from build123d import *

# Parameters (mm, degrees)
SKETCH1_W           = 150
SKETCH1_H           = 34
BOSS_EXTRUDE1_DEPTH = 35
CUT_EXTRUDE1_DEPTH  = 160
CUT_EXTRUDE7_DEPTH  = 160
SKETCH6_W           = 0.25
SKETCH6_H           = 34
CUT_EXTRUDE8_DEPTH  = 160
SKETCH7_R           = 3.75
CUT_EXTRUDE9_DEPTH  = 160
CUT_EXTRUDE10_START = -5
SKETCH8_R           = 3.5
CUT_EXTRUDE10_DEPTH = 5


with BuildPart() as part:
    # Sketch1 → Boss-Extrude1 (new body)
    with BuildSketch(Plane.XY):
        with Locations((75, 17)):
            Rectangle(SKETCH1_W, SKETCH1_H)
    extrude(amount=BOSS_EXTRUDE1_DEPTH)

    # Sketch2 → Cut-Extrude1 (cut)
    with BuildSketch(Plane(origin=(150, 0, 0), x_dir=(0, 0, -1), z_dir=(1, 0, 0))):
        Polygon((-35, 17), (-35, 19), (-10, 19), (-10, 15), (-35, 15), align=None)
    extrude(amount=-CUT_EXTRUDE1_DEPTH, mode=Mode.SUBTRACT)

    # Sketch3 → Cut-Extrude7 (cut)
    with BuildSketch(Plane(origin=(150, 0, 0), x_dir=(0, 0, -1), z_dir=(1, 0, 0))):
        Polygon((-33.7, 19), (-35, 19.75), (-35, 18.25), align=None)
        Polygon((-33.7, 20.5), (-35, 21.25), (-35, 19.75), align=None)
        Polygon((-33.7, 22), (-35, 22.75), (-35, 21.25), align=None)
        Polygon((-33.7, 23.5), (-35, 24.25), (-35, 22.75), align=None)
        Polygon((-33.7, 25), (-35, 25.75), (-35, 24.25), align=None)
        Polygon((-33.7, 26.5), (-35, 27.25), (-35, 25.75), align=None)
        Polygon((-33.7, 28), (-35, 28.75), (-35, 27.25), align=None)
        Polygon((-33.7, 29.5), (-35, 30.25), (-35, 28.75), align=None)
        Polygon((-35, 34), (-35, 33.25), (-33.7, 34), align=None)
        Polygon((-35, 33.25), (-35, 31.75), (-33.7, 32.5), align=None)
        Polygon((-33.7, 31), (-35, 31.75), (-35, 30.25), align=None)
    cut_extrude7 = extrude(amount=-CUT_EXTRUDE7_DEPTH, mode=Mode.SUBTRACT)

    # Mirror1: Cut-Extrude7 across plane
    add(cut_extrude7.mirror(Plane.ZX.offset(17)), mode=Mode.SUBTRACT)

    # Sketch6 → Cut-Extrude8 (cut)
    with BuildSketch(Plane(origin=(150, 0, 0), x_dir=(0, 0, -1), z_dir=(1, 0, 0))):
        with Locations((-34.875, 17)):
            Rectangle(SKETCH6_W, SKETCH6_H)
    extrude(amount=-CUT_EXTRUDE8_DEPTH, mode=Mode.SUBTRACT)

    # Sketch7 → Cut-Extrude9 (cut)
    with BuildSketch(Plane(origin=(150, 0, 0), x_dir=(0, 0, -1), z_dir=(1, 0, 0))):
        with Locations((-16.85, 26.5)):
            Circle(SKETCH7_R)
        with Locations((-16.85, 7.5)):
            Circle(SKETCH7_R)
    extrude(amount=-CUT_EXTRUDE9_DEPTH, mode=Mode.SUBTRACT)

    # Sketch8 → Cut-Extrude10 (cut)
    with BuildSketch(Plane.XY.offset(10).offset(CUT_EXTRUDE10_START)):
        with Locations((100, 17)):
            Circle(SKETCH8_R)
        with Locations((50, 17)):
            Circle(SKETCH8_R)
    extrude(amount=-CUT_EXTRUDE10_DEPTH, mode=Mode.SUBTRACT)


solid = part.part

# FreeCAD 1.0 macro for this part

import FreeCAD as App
import Part
import Sketcher
Q = App.Units.Quantity

doc = App.newDocument("Part")
body = doc.addObject("PartDesign::Body", "Body")

# Sketch on XY plane
sketch1 = body.newObject("Sketcher::SketchObject", "Sketch")
sketch1.AttachmentSupport = (doc.getObject("XY_Plane"), [""])
sketch1.MapMode = "FlatFace"
sketch1.addGeometry([
    Part.LineSegment(App.Vector(0, 34, 0), App.Vector(0, 0, 0)),
    Part.LineSegment(App.Vector(0, 0, 0), App.Vector(150, 0, 0)),
    Part.LineSegment(App.Vector(150, 0, 0), App.Vector(150, 34, 0)),
    Part.LineSegment(App.Vector(150, 34, 0), App.Vector(0, 34, 0)),
], False)
sketch1.addConstraint([
    Sketcher.Constraint("Coincident", 0, 2, 1, 1),
    Sketcher.Constraint("Coincident", 1, 2, 2, 1),
    Sketcher.Constraint("Coincident", 2, 2, 3, 1),
    Sketcher.Constraint("Coincident", 3, 2, 0, 1),
    Sketcher.Constraint("Vertical", 0),
    Sketcher.Constraint("Horizontal", 1),
    Sketcher.Constraint("Vertical", 2),
    Sketcher.Constraint("Horizontal", 3),
    Sketcher.Constraint("Coincident", 0, 2, -1, 1),
    Sketcher.Constraint("DistanceX", 1, 1, 1, 2, Q("150 mm")),
    Sketcher.Constraint("DistanceY", 0, 2, 0, 1, Q("34 mm")),
])
pad1 = body.newObject("PartDesign::Pad", "Pad")
pad1.Profile = sketch1
pad1.Length = 35

# Sketch on YZ plane
sketch2 = body.newObject("Sketcher::SketchObject", "Sketch001")
sketch2.AttachmentSupport = (doc.getObject("YZ_Plane"), [""])
sketch2.MapMode = "FlatFace"
sketch2.AttachmentOffset = App.Placement(App.Vector(0, 0, 150), App.Rotation())
sketch2.addGeometry([
    Part.LineSegment(App.Vector(19, 35, 0), App.Vector(15, 35, 0)),
    Part.LineSegment(App.Vector(15, 35, 0), App.Vector(15, 10, 0)),
    Part.LineSegment(App.Vector(15, 10, 0), App.Vector(19, 10, 0)),
    Part.LineSegment(App.Vector(19, 10, 0), App.Vector(19, 35, 0)),
], False)
sketch2.addConstraint([
    Sketcher.Constraint("Coincident", 0, 2, 1, 1),
    Sketcher.Constraint("Coincident", 1, 2, 2, 1),
    Sketcher.Constraint("Coincident", 2, 2, 3, 1),
    Sketcher.Constraint("Coincident", 3, 2, 0, 1),
    Sketcher.Constraint("Horizontal", 0),
    Sketcher.Constraint("Vertical", 1),
    Sketcher.Constraint("Horizontal", 2),
    Sketcher.Constraint("Vertical", 3),
    Sketcher.Constraint("DistanceX", 0, 2, 0, 1, Q("4 mm")),
    Sketcher.Constraint("DistanceY", 1, 2, 1, 1, Q("25 mm")),
    Sketcher.Constraint("DistanceX", -1, 1, 0, 2, Q("15 mm")),
    Sketcher.Constraint("DistanceY", -1, 1, 0, 2, Q("35 mm")),
])
pocket1 = body.newObject("PartDesign::Pocket", "Pocket")
pocket1.Profile = sketch2
pocket1.Length = 160

# Sketch on YZ plane
sketch3 = body.newObject("Sketcher::SketchObject", "Sketch002")
sketch3.AttachmentSupport = (doc.getObject("YZ_Plane"), [""])
sketch3.MapMode = "FlatFace"
sketch3.AttachmentOffset = App.Placement(App.Vector(0, 0, 150), App.Rotation())
sketch3.addGeometry([
    Part.LineSegment(App.Vector(19, 33.7, 0), App.Vector(19.8, 35, 0)),  # 0
    Part.LineSegment(App.Vector(19.8, 35, 0), App.Vector(18.2, 35, 0)),  # 1
    Part.LineSegment(App.Vector(18.2, 35, 0), App.Vector(19, 33.7, 0)),  # 2
    Part.LineSegment(App.Vector(20.5, 33.7, 0), App.Vector(21.2, 35, 0)),  # 3
    Part.LineSegment(App.Vector(21.2, 35, 0), App.Vector(19.8, 35, 0)),  # 4
    Part.LineSegment(App.Vector(19.8, 35, 0), App.Vector(20.5, 33.7, 0)),  # 5
    Part.LineSegment(App.Vector(22, 33.7, 0), App.Vector(22.8, 35, 0)),  # 6
    Part.LineSegment(App.Vector(22.8, 35, 0), App.Vector(21.2, 35, 0)),  # 7
    Part.LineSegment(App.Vector(21.2, 35, 0), App.Vector(22, 33.7, 0)),  # 8
    Part.LineSegment(App.Vector(23.5, 33.7, 0), App.Vector(24.2, 35, 0)),  # 9
    Part.LineSegment(App.Vector(24.2, 35, 0), App.Vector(22.8, 35, 0)),  # 10
    Part.LineSegment(App.Vector(22.8, 35, 0), App.Vector(23.5, 33.7, 0)),  # 11
    Part.LineSegment(App.Vector(25, 33.7, 0), App.Vector(25.8, 35, 0)),  # 12
    Part.LineSegment(App.Vector(25.8, 35, 0), App.Vector(24.2, 35, 0)),  # 13
    Part.LineSegment(App.Vector(24.2, 35, 0), App.Vector(25, 33.7, 0)),  # 14
    Part.LineSegment(App.Vector(26.5, 33.7, 0), App.Vector(27.2, 35, 0)),  # 15
    Part.LineSegment(App.Vector(27.2, 35, 0), App.Vector(25.8, 35, 0)),  # 16
    Part.LineSegment(App.Vector(25.8, 35, 0), App.Vector(26.5, 33.7, 0)),  # 17
    Part.LineSegment(App.Vector(28, 33.7, 0), App.Vector(28.8, 35, 0)),  # 18
    Part.LineSegment(App.Vector(28.8, 35, 0), App.Vector(27.2, 35, 0)),  # 19
    Part.LineSegment(App.Vector(27.2, 35, 0), App.Vector(28, 33.7, 0)),  # 20
    Part.LineSegment(App.Vector(29.5, 33.7, 0), App.Vector(30.2, 35, 0)),  # 21
    Part.LineSegment(App.Vector(30.2, 35, 0), App.Vector(28.8, 35, 0)),  # 22
    Part.LineSegment(App.Vector(28.8, 35, 0), App.Vector(29.5, 33.7, 0)),  # 23
    Part.LineSegment(App.Vector(34, 35, 0), App.Vector(33.2, 35, 0)),  # 24
    Part.LineSegment(App.Vector(33.2, 35, 0), App.Vector(34, 33.7, 0)),  # 25
    Part.LineSegment(App.Vector(34, 33.7, 0), App.Vector(34, 35, 0)),  # 26
    Part.LineSegment(App.Vector(33.2, 35, 0), App.Vector(31.8, 35, 0)),  # 27
    Part.LineSegment(App.Vector(31.8, 35, 0), App.Vector(32.5, 33.7, 0)),  # 28
    Part.LineSegment(App.Vector(32.5, 33.7, 0), App.Vector(33.2, 35, 0)),  # 29
    Part.LineSegment(App.Vector(31, 33.7, 0), App.Vector(31.8, 35, 0)),  # 30
    Part.LineSegment(App.Vector(31.8, 35, 0), App.Vector(30.2, 35, 0)),  # 31
    Part.LineSegment(App.Vector(30.2, 35, 0), App.Vector(31, 33.7, 0)),  # 32
], False)
sketch3.addConstraint([
    Sketcher.Constraint("Coincident", 0, 2, 1, 1),
    Sketcher.Constraint("Coincident", 1, 2, 2, 1),
    Sketcher.Constraint("Coincident", 2, 2, 0, 1),
    Sketcher.Constraint("Coincident", 3, 2, 4, 1),
    Sketcher.Constraint("Coincident", 4, 2, 5, 1),
    Sketcher.Constraint("Coincident", 5, 2, 3, 1),
    Sketcher.Constraint("Coincident", 6, 2, 7, 1),
    Sketcher.Constraint("Coincident", 7, 2, 8, 1),
    Sketcher.Constraint("Coincident", 8, 2, 6, 1),
    Sketcher.Constraint("Coincident", 9, 2, 10, 1),
    Sketcher.Constraint("Coincident", 10, 2, 11, 1),
    Sketcher.Constraint("Coincident", 11, 2, 9, 1),
    Sketcher.Constraint("Coincident", 12, 2, 13, 1),
    Sketcher.Constraint("Coincident", 13, 2, 14, 1),
    Sketcher.Constraint("Coincident", 14, 2, 12, 1),
    Sketcher.Constraint("Coincident", 15, 2, 16, 1),
    Sketcher.Constraint("Coincident", 16, 2, 17, 1),
    Sketcher.Constraint("Coincident", 17, 2, 15, 1),
    Sketcher.Constraint("Coincident", 18, 2, 19, 1),
    Sketcher.Constraint("Coincident", 19, 2, 20, 1),
    Sketcher.Constraint("Coincident", 20, 2, 18, 1),
    Sketcher.Constraint("Coincident", 21, 2, 22, 1),
    Sketcher.Constraint("Coincident", 22, 2, 23, 1),
    Sketcher.Constraint("Coincident", 23, 2, 21, 1),
    Sketcher.Constraint("Coincident", 24, 2, 25, 1),
    Sketcher.Constraint("Coincident", 25, 2, 26, 1),
    Sketcher.Constraint("Coincident", 26, 2, 24, 1),
    Sketcher.Constraint("Coincident", 27, 2, 28, 1),
    Sketcher.Constraint("Coincident", 28, 2, 29, 1),
    Sketcher.Constraint("Coincident", 29, 2, 27, 1),
    Sketcher.Constraint("Coincident", 30, 2, 31, 1),
    Sketcher.Constraint("Coincident", 31, 2, 32, 1),
    Sketcher.Constraint("Coincident", 32, 2, 30, 1),
    Sketcher.Constraint("Horizontal", 1),
    Sketcher.Constraint("Horizontal", 4),
    Sketcher.Constraint("Horizontal", 7),
    Sketcher.Constraint("Horizontal", 10),
    Sketcher.Constraint("Horizontal", 13),
    Sketcher.Constraint("Horizontal", 16),
    Sketcher.Constraint("Horizontal", 19),
    Sketcher.Constraint("Horizontal", 22),
    Sketcher.Constraint("Horizontal", 24),
    Sketcher.Constraint("Vertical", 26),
    Sketcher.Constraint("Horizontal", 27),
    Sketcher.Constraint("Horizontal", 31),
    Sketcher.Constraint("Coincident", 4, 2, 0, 2),
    Sketcher.Constraint("Coincident", 7, 2, 3, 2),
    Sketcher.Constraint("Coincident", 10, 2, 6, 2),
    Sketcher.Constraint("Coincident", 13, 2, 9, 2),
    Sketcher.Constraint("Coincident", 16, 2, 12, 2),
    Sketcher.Constraint("Coincident", 19, 2, 15, 2),
    Sketcher.Constraint("Coincident", 22, 2, 18, 2),
    Sketcher.Constraint("Coincident", 29, 2, 24, 2),
    Sketcher.Constraint("Coincident", 30, 2, 27, 2),
    Sketcher.Constraint("Coincident", 31, 2, 21, 2),
    Sketcher.Constraint("Parallel", 0, 3),
    Sketcher.Constraint("Parallel", 2, 5),
    Sketcher.Constraint("Parallel", 3, 6),
    Sketcher.Constraint("Parallel", 5, 8),
    Sketcher.Constraint("Parallel", 6, 9),
    Sketcher.Constraint("Parallel", 8, 11),
    Sketcher.Constraint("Parallel", 9, 12),
    Sketcher.Constraint("Parallel", 11, 14),
    Sketcher.Constraint("Parallel", 12, 15),
    Sketcher.Constraint("Parallel", 14, 17),
    Sketcher.Constraint("Parallel", 15, 18),
    Sketcher.Constraint("Parallel", 17, 20),
    Sketcher.Constraint("Parallel", 18, 21),
    Sketcher.Constraint("Parallel", 20, 23),
    Sketcher.Constraint("Parallel", 23, 25),
    Sketcher.Constraint("Parallel", 25, 28),
    Sketcher.Constraint("Parallel", 21, 29),
    Sketcher.Constraint("Parallel", 29, 30),
    Sketcher.Constraint("Parallel", 28, 32),
    Sketcher.Constraint("Horizontal", 2, 2, 5, 2),
    Sketcher.Constraint("Horizontal", 5, 2, 8, 2),
    Sketcher.Constraint("Horizontal", 8, 2, 11, 2),
    Sketcher.Constraint("Horizontal", 11, 2, 14, 2),
    Sketcher.Constraint("Horizontal", 14, 2, 17, 2),
    Sketcher.Constraint("Horizontal", 17, 2, 20, 2),
    Sketcher.Constraint("Horizontal", 20, 2, 23, 2),
    Sketcher.Constraint("Horizontal", 23, 2, 25, 2),
    Sketcher.Constraint("Horizontal", 25, 2, 28, 2),
    Sketcher.Constraint("Horizontal", 28, 2, 32, 2),
    Sketcher.Constraint("Equal", 0, 2),
    Sketcher.Constraint("DistanceX", 1, 2, 1, 1, Q("1.5 mm")),
    Sketcher.Constraint("DistanceY", 26, 1, 26, 2, Q("1.3 mm")),
    Sketcher.Constraint("DistanceY", -1, 1, 0, 2, Q("35 mm")),
    Sketcher.Constraint("DistanceX", -1, 1, 2, 2, Q("19 mm")),
])
pocket2 = body.newObject("PartDesign::Pocket", "Pocket001")
pocket2.Profile = sketch3
pocket2.Length = 160
doc.recompute()

datumplane = body.newObject("PartDesign::Plane", "DatumPlane")
datumplane.AttachmentSupport = (doc.getObject("XZ_Plane"), [""])
datumplane.MapMode = "FlatFace"
datumplane.AttachmentOffset = App.Placement(App.Vector(0, 0, -17), App.Rotation())
mirrored = body.newObject("PartDesign::Mirrored", "Mirrored")
mirrored.Originals = [pocket2]
mirrored.MirrorPlane = (datumplane, [""])
body.Tip = mirrored

# Sketch on YZ plane
sketch4 = body.newObject("Sketcher::SketchObject", "Sketch003")
sketch4.AttachmentSupport = (doc.getObject("YZ_Plane"), [""])
sketch4.MapMode = "FlatFace"
sketch4.AttachmentOffset = App.Placement(App.Vector(0, 0, 150), App.Rotation())
sketch4.addGeometry([
    Part.LineSegment(App.Vector(34, 35, 0), App.Vector(0, 35, 0)),
    Part.LineSegment(App.Vector(0, 35, 0), App.Vector(0, 34.75, 0)),
    Part.LineSegment(App.Vector(0, 34.75, 0), App.Vector(34, 34.75, 0)),
    Part.LineSegment(App.Vector(34, 34.75, 0), App.Vector(34, 35, 0)),
], False)
sketch4.addConstraint([
    Sketcher.Constraint("Coincident", 0, 2, 1, 1),
    Sketcher.Constraint("Coincident", 1, 2, 2, 1),
    Sketcher.Constraint("Coincident", 2, 2, 3, 1),
    Sketcher.Constraint("Coincident", 3, 2, 0, 1),
    Sketcher.Constraint("Horizontal", 0),
    Sketcher.Constraint("Vertical", 1),
    Sketcher.Constraint("Horizontal", 2),
    Sketcher.Constraint("Vertical", 3),
    Sketcher.Constraint("PointOnObject", 0, 2, -2),
    Sketcher.Constraint("DistanceX", 0, 2, 0, 1, Q("34 mm")),
    Sketcher.Constraint("DistanceY", -1, 1, 0, 2, Q("35 mm")),
    Sketcher.Constraint("DistanceY", 1, 2, 1, 1, Q("0.25 mm")),
])
pocket3 = body.newObject("PartDesign::Pocket", "Pocket002")
pocket3.Profile = sketch4
pocket3.Length = 160

# Sketch on YZ plane
sketch5 = body.newObject("Sketcher::SketchObject", "Sketch004")
sketch5.AttachmentSupport = (doc.getObject("YZ_Plane"), [""])
sketch5.MapMode = "FlatFace"
sketch5.AttachmentOffset = App.Placement(App.Vector(0, 0, 150), App.Rotation())
sketch5.addGeometry([
    Part.Circle(App.Vector(26.5, 16.9, 0), App.Vector(0, 0, 1), 3.8),
    Part.Circle(App.Vector(7.5, 16.9, 0), App.Vector(0, 0, 1), 3.8),
], False)
sketch5.addConstraint([
    Sketcher.Constraint("Equal", 0, 1),
    Sketcher.Constraint("Horizontal", 0, 3, 1, 3),
    Sketcher.Constraint("Diameter", 0, Q("7.5 mm")),
    Sketcher.Constraint("DistanceX", 1, 3, 0, 3, Q("19 mm")),
    Sketcher.Constraint("DistanceX", -1, 1, 0, 3, Q("26.5 mm")),
    Sketcher.Constraint("DistanceY", -1, 1, 0, 3, Q("16.85 mm")),
])
pocket4 = body.newObject("PartDesign::Pocket", "Pocket003")
pocket4.Profile = sketch5
pocket4.Length = 160

# Sketch on XY plane
sketch6 = body.newObject("Sketcher::SketchObject", "Sketch005")
sketch6.AttachmentSupport = (doc.getObject("XY_Plane"), [""])
sketch6.MapMode = "FlatFace"
sketch6.AttachmentOffset = App.Placement(App.Vector(0, 0, 5), App.Rotation())
sketch6.addGeometry([
    Part.Circle(App.Vector(100, 17, 0), App.Vector(0, 0, 1), 3.5),
    Part.Circle(App.Vector(50, 17, 0), App.Vector(0, 0, 1), 3.5),
], False)
sketch6.addConstraint([
    Sketcher.Constraint("Equal", 0, 1),
    Sketcher.Constraint("Horizontal", 0, 3, 1, 3),
    Sketcher.Constraint("Diameter", 0, Q("7 mm")),
    Sketcher.Constraint("DistanceX", -1, 1, 0, 3, Q("100 mm")),
    Sketcher.Constraint("DistanceY", -1, 1, 0, 3, Q("17 mm")),
    Sketcher.Constraint("DistanceX", -1, 1, 1, 3, Q("50 mm")),
])
pocket5 = body.newObject("PartDesign::Pocket", "Pocket004")
pocket5.Profile = sketch6
pocket5.Length = 5

doc.recompute()
